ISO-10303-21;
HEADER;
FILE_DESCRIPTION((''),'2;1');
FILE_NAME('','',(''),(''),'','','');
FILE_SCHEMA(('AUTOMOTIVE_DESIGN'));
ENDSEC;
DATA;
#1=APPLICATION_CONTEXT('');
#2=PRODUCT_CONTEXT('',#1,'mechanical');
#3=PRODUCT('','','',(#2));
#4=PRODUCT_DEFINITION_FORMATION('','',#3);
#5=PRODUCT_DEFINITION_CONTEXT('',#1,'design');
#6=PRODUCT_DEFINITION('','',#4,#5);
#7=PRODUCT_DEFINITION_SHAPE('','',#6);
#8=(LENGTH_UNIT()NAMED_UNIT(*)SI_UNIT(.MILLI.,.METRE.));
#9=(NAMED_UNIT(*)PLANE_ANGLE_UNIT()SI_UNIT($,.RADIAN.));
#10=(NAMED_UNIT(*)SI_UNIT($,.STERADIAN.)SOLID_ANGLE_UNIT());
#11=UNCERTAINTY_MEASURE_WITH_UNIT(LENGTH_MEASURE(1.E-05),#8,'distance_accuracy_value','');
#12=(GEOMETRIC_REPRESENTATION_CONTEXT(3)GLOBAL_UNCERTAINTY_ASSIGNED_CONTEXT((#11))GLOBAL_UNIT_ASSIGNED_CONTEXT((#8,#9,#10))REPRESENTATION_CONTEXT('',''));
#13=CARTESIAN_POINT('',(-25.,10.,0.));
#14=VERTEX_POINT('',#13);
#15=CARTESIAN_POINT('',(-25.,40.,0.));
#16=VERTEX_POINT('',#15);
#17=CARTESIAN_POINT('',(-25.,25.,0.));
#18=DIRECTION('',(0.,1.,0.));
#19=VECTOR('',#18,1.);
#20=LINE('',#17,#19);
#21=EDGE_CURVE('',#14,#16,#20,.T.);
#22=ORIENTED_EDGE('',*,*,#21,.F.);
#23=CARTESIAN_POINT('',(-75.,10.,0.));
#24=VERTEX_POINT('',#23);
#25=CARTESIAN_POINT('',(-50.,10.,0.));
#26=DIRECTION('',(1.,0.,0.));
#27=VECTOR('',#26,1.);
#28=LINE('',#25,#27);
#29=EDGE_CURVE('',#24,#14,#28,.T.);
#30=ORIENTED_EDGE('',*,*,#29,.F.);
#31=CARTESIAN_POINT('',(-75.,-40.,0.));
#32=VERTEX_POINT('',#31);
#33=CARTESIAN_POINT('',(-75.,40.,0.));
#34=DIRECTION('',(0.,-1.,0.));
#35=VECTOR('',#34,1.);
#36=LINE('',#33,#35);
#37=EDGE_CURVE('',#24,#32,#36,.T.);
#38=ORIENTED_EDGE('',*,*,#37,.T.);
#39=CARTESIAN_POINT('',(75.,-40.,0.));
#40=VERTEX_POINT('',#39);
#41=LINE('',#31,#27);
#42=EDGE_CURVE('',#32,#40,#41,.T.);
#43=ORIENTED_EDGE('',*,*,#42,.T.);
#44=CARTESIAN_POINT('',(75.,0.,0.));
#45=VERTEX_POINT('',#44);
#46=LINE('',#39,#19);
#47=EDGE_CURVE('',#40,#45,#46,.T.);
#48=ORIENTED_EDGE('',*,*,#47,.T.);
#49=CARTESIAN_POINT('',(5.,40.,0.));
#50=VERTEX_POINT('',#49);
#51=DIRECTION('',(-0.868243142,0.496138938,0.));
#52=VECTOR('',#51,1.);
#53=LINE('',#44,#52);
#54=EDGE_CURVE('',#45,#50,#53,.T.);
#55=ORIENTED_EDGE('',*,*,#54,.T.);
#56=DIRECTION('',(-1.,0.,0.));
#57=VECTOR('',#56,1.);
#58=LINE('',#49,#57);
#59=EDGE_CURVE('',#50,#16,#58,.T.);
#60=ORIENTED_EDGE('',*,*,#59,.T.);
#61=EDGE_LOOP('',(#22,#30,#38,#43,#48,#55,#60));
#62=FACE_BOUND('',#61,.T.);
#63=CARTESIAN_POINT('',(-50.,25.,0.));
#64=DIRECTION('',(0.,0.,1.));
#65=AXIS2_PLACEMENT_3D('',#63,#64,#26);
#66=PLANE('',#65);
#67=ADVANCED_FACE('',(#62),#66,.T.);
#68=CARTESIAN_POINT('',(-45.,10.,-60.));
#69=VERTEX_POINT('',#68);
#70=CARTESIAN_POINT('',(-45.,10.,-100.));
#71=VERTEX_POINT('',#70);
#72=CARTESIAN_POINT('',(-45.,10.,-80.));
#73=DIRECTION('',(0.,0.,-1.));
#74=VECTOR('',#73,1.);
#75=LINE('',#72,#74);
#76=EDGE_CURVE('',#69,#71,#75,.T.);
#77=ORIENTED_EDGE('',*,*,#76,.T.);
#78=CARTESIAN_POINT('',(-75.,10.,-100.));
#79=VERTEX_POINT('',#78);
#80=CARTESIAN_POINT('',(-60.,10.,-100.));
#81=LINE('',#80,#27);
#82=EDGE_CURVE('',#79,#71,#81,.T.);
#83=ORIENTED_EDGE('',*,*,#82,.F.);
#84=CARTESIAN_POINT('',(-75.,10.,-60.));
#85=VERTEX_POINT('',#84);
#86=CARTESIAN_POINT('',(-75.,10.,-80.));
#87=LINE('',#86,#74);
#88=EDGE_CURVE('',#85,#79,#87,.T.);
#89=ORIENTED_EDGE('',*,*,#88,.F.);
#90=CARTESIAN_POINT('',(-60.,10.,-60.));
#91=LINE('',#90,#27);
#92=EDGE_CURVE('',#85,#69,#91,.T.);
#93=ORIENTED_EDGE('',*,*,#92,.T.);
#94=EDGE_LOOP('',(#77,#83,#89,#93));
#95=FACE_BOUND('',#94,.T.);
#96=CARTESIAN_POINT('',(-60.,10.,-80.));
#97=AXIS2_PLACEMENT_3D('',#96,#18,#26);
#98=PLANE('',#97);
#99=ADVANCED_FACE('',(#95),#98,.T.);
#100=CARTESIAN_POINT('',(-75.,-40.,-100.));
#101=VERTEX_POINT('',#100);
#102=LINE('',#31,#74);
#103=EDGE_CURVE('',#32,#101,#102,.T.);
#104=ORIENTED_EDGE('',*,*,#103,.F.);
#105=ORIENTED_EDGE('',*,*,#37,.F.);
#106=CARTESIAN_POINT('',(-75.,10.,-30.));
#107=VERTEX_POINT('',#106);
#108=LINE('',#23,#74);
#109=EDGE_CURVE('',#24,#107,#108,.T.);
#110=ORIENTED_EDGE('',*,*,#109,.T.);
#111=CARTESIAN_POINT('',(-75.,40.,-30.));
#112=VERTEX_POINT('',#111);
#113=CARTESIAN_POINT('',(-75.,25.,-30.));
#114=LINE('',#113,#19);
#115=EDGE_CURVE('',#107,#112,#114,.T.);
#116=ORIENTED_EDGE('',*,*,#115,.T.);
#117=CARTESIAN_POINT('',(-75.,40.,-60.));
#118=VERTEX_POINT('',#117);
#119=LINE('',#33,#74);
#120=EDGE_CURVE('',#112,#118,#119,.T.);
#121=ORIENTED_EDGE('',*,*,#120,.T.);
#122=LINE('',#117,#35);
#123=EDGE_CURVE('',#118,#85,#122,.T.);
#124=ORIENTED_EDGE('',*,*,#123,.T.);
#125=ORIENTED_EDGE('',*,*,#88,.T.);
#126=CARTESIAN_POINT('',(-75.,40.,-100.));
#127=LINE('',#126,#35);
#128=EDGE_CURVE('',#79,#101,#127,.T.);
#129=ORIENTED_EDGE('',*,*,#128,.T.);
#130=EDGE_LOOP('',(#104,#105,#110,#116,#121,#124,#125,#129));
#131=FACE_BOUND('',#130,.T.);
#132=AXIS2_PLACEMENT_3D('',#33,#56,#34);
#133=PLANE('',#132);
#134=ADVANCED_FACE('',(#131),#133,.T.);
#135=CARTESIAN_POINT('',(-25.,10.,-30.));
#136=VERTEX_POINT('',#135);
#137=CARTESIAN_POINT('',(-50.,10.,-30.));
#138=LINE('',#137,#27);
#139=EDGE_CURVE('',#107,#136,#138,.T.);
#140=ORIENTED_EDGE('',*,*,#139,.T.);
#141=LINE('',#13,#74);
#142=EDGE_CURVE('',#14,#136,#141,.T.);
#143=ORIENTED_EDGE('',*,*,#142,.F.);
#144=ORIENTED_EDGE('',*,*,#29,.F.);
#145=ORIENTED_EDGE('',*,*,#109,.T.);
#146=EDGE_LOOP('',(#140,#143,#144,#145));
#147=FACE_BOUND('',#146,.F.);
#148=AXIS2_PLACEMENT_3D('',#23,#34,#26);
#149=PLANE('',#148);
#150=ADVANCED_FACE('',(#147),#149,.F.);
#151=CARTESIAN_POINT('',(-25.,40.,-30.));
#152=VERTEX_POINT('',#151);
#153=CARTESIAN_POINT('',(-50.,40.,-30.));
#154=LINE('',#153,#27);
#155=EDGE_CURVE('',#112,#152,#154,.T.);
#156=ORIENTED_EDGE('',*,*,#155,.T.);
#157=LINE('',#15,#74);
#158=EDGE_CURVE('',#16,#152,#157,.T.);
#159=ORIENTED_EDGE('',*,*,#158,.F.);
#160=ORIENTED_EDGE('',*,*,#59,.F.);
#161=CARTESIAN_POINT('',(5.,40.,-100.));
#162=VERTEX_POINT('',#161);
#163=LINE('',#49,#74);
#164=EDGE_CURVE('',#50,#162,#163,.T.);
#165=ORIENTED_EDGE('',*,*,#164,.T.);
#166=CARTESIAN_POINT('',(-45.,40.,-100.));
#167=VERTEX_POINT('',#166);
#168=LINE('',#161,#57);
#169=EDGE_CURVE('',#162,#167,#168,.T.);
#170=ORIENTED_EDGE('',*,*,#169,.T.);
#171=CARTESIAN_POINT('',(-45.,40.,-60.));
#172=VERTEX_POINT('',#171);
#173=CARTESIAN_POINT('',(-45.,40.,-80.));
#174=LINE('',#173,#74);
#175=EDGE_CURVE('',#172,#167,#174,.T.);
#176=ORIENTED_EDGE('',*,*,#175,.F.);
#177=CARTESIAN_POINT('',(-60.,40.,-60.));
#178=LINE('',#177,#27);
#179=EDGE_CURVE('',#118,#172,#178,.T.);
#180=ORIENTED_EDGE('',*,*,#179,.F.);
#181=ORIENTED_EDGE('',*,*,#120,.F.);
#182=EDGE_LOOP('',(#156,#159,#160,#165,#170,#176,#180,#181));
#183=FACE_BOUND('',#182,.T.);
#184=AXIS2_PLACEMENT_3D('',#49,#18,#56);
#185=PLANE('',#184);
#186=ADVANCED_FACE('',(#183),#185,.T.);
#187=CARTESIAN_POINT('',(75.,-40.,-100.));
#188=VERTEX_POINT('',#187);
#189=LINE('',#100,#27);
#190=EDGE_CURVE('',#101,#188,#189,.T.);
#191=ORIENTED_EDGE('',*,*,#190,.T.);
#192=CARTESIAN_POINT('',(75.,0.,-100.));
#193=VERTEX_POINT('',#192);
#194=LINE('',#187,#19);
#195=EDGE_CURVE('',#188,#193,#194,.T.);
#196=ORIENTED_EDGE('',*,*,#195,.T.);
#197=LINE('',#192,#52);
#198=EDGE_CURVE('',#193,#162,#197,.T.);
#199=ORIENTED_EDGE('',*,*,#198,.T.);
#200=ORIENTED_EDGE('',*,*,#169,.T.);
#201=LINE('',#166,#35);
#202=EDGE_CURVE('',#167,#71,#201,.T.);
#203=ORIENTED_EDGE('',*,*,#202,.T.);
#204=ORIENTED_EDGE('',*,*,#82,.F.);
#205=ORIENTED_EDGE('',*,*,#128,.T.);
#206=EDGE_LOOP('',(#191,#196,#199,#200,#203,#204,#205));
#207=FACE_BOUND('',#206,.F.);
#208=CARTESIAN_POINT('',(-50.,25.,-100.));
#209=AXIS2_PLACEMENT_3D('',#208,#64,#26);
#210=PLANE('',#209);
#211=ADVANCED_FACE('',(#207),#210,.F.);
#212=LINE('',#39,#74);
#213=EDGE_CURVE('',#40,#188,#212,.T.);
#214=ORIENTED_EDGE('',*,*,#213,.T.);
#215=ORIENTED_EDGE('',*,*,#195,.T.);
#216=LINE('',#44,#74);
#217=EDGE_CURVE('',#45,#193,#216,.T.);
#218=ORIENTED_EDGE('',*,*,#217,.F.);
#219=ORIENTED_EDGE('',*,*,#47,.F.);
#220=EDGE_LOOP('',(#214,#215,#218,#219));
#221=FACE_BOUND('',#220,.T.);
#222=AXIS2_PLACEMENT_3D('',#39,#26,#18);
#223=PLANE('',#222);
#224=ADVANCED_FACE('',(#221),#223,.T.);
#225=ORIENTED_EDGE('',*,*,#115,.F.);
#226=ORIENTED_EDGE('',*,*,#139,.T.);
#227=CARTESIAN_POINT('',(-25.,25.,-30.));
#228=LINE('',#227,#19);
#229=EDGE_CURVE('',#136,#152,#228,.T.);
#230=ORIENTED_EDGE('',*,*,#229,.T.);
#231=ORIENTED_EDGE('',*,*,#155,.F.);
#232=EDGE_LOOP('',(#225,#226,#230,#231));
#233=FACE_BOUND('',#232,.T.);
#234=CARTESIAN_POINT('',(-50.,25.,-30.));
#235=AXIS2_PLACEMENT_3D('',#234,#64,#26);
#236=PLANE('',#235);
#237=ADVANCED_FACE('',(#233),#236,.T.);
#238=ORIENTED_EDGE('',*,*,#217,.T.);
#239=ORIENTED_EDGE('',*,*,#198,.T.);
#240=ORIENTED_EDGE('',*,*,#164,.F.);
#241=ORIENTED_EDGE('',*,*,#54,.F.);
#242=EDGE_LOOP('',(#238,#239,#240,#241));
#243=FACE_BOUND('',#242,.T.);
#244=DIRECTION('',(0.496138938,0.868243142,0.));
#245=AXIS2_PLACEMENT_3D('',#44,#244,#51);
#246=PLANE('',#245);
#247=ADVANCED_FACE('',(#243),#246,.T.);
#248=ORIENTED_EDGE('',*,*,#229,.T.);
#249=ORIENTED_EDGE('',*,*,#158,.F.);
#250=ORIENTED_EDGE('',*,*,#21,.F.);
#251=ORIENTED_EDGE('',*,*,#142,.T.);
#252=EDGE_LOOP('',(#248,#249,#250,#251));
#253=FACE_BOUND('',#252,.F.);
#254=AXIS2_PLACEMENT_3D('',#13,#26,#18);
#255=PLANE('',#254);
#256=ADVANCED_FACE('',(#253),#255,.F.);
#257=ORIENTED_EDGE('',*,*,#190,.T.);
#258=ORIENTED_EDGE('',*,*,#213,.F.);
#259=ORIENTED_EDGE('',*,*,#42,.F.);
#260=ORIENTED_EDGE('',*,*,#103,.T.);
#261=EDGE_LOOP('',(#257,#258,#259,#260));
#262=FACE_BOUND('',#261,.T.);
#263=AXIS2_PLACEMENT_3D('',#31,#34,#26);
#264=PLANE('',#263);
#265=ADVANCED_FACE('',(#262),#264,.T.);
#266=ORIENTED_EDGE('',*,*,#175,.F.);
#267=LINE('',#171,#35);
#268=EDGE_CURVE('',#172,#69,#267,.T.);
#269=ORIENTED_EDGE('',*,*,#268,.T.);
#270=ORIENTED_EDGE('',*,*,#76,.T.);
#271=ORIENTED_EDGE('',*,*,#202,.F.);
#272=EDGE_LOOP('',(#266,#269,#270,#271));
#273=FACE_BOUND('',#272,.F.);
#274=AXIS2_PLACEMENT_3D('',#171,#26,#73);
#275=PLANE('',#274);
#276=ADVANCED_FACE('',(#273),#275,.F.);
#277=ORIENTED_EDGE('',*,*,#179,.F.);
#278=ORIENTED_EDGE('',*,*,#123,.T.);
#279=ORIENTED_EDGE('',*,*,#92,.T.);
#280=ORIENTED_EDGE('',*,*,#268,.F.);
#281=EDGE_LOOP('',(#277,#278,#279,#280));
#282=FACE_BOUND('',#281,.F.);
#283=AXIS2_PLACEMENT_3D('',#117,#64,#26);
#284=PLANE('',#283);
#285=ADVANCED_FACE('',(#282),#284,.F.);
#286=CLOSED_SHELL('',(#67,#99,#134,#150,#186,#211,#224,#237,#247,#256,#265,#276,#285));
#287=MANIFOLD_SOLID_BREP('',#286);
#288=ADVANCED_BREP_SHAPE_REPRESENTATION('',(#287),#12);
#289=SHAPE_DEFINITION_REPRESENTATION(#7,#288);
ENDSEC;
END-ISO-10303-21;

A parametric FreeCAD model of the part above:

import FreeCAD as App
import Part
import Sketcher

V = App.Vector


def add_polygon(sketch, points):
    """Adds a closed chain of lines whose ends are joined by coincident constraints."""
    first, n = sketch.GeometryCount, len(points)
    for a, b in zip(points, points[1:] + points[:1]):
        sketch.addGeometry(Part.LineSegment(App.Vector(*a, 0), App.Vector(*b, 0)), False)
    for i in range(n):
        sketch.addConstraint(Sketcher.Constraint("Coincident", first + i, 2, first + (i + 1) % n, 1))

doc = App.newDocument("Part")
body = doc.addObject("PartDesign::Body", "Body")

# Sketch on XY plane
sketch1 = body.newObject("Sketcher::SketchObject", "Sketch")
sketch1.AttachmentSupport = (doc.getObject("XY_Plane"), [""])
sketch1.MapMode = "FlatFace"
add_polygon(sketch1, [(-75, 40), (-75, -40), (75, -40), (75, 0), (5, 40)])  # lines 0-4
sketch1.addConstraint(Sketcher.Constraint("Vertical", 0))
sketch1.addConstraint(Sketcher.Constraint("Horizontal", 1))
sketch1.addConstraint(Sketcher.Constraint("Vertical", 2))
sketch1.addConstraint(Sketcher.Constraint("Horizontal", 4))
sketch1.addConstraint(Sketcher.Constraint("Symmetric", 1, 2, 4, 2, -1, 1))
sketch1.addConstraint(Sketcher.Constraint("PointOnObject", 2, 2, -1))
sketch1.addConstraint(Sketcher.Constraint("Equal", 4, 0))
sketch1.addConstraint(Sketcher.Constraint("DistanceX", 1, 1, 1, 2, 150.0))
sketch1.addConstraint(Sketcher.Constraint("DistanceX", 4, 2, 4, 1, 80.0))
pad1 = body.newObject("PartDesign::Pad", "Pad")
pad1.Profile = sketch1
pad1.Length = 100
pad1.Reversed = True

# Sketch on XY plane
sketch2 = body.newObject("Sketcher::SketchObject", "Sketch001")
sketch2.AttachmentSupport = (doc.getObject("XY_Plane"), [""])
sketch2.MapMode = "FlatFace"
add_polygon(sketch2, [(-75, 40), (-75, 10), (-25, 10), (-25, 40)])  # lines 0-3
sketch2.addConstraint(Sketcher.Constraint("Vertical", 0))
sketch2.addConstraint(Sketcher.Constraint("Horizontal", 1))
sketch2.addConstraint(Sketcher.Constraint("Vertical", 2))
sketch2.addConstraint(Sketcher.Constraint("Horizontal", 3))
sketch2.addConstraint(Sketcher.Constraint("DistanceX", 1, 1, 1, 2, 50.0))
sketch2.addConstraint(Sketcher.Constraint("DistanceY", 0, 2, 0, 1, 30.0))
sketch2.addConstraint(Sketcher.Constraint("DistanceX", 0, 2, -1, 1, 75.0))
sketch2.addConstraint(Sketcher.Constraint("DistanceY", -1, 1, 0, 2, 10.0))
pocket1 = body.newObject("PartDesign::Pocket", "Pocket")
pocket1.Profile = sketch2
pocket1.Length = 30

# Sketch on XZ plane
sketch3 = body.newObject("Sketcher::SketchObject", "Sketch002")
sketch3.AttachmentSupport = (doc.getObject("XZ_Plane"), [""])
sketch3.MapMode = "FlatFace"
sketch3.AttachmentOffset = App.Placement(V(0, 0, -40), App.Rotation())
add_polygon(sketch3, [(-75, -100), (-75, -60), (-45, -60), (-45, -100)])  # lines 0-3
sketch3.addConstraint(Sketcher.Constraint("Vertical", 0))
sketch3.addConstraint(Sketcher.Constraint("Horizontal", 1))
sketch3.addConstraint(Sketcher.Constraint("Vertical", 2))
sketch3.addConstraint(Sketcher.Constraint("Horizontal", 3))
sketch3.addConstraint(Sketcher.Constraint("DistanceX", 1, 1, 1, 2, 30.0))
sketch3.addConstraint(Sketcher.Constraint("DistanceY", 0, 1, 0, 2, 40.0))
sketch3.addConstraint(Sketcher.Constraint("DistanceX", 0, 2, -1, 1, 75.0))
sketch3.addConstraint(Sketcher.Constraint("DistanceY", 0, 2, -1, 1, 60.0))
pocket2 = body.newObject("PartDesign::Pocket", "Pocket001")
pocket2.Profile = sketch3
pocket2.Length = 30
pocket2.Reversed = True

doc.recompute()
